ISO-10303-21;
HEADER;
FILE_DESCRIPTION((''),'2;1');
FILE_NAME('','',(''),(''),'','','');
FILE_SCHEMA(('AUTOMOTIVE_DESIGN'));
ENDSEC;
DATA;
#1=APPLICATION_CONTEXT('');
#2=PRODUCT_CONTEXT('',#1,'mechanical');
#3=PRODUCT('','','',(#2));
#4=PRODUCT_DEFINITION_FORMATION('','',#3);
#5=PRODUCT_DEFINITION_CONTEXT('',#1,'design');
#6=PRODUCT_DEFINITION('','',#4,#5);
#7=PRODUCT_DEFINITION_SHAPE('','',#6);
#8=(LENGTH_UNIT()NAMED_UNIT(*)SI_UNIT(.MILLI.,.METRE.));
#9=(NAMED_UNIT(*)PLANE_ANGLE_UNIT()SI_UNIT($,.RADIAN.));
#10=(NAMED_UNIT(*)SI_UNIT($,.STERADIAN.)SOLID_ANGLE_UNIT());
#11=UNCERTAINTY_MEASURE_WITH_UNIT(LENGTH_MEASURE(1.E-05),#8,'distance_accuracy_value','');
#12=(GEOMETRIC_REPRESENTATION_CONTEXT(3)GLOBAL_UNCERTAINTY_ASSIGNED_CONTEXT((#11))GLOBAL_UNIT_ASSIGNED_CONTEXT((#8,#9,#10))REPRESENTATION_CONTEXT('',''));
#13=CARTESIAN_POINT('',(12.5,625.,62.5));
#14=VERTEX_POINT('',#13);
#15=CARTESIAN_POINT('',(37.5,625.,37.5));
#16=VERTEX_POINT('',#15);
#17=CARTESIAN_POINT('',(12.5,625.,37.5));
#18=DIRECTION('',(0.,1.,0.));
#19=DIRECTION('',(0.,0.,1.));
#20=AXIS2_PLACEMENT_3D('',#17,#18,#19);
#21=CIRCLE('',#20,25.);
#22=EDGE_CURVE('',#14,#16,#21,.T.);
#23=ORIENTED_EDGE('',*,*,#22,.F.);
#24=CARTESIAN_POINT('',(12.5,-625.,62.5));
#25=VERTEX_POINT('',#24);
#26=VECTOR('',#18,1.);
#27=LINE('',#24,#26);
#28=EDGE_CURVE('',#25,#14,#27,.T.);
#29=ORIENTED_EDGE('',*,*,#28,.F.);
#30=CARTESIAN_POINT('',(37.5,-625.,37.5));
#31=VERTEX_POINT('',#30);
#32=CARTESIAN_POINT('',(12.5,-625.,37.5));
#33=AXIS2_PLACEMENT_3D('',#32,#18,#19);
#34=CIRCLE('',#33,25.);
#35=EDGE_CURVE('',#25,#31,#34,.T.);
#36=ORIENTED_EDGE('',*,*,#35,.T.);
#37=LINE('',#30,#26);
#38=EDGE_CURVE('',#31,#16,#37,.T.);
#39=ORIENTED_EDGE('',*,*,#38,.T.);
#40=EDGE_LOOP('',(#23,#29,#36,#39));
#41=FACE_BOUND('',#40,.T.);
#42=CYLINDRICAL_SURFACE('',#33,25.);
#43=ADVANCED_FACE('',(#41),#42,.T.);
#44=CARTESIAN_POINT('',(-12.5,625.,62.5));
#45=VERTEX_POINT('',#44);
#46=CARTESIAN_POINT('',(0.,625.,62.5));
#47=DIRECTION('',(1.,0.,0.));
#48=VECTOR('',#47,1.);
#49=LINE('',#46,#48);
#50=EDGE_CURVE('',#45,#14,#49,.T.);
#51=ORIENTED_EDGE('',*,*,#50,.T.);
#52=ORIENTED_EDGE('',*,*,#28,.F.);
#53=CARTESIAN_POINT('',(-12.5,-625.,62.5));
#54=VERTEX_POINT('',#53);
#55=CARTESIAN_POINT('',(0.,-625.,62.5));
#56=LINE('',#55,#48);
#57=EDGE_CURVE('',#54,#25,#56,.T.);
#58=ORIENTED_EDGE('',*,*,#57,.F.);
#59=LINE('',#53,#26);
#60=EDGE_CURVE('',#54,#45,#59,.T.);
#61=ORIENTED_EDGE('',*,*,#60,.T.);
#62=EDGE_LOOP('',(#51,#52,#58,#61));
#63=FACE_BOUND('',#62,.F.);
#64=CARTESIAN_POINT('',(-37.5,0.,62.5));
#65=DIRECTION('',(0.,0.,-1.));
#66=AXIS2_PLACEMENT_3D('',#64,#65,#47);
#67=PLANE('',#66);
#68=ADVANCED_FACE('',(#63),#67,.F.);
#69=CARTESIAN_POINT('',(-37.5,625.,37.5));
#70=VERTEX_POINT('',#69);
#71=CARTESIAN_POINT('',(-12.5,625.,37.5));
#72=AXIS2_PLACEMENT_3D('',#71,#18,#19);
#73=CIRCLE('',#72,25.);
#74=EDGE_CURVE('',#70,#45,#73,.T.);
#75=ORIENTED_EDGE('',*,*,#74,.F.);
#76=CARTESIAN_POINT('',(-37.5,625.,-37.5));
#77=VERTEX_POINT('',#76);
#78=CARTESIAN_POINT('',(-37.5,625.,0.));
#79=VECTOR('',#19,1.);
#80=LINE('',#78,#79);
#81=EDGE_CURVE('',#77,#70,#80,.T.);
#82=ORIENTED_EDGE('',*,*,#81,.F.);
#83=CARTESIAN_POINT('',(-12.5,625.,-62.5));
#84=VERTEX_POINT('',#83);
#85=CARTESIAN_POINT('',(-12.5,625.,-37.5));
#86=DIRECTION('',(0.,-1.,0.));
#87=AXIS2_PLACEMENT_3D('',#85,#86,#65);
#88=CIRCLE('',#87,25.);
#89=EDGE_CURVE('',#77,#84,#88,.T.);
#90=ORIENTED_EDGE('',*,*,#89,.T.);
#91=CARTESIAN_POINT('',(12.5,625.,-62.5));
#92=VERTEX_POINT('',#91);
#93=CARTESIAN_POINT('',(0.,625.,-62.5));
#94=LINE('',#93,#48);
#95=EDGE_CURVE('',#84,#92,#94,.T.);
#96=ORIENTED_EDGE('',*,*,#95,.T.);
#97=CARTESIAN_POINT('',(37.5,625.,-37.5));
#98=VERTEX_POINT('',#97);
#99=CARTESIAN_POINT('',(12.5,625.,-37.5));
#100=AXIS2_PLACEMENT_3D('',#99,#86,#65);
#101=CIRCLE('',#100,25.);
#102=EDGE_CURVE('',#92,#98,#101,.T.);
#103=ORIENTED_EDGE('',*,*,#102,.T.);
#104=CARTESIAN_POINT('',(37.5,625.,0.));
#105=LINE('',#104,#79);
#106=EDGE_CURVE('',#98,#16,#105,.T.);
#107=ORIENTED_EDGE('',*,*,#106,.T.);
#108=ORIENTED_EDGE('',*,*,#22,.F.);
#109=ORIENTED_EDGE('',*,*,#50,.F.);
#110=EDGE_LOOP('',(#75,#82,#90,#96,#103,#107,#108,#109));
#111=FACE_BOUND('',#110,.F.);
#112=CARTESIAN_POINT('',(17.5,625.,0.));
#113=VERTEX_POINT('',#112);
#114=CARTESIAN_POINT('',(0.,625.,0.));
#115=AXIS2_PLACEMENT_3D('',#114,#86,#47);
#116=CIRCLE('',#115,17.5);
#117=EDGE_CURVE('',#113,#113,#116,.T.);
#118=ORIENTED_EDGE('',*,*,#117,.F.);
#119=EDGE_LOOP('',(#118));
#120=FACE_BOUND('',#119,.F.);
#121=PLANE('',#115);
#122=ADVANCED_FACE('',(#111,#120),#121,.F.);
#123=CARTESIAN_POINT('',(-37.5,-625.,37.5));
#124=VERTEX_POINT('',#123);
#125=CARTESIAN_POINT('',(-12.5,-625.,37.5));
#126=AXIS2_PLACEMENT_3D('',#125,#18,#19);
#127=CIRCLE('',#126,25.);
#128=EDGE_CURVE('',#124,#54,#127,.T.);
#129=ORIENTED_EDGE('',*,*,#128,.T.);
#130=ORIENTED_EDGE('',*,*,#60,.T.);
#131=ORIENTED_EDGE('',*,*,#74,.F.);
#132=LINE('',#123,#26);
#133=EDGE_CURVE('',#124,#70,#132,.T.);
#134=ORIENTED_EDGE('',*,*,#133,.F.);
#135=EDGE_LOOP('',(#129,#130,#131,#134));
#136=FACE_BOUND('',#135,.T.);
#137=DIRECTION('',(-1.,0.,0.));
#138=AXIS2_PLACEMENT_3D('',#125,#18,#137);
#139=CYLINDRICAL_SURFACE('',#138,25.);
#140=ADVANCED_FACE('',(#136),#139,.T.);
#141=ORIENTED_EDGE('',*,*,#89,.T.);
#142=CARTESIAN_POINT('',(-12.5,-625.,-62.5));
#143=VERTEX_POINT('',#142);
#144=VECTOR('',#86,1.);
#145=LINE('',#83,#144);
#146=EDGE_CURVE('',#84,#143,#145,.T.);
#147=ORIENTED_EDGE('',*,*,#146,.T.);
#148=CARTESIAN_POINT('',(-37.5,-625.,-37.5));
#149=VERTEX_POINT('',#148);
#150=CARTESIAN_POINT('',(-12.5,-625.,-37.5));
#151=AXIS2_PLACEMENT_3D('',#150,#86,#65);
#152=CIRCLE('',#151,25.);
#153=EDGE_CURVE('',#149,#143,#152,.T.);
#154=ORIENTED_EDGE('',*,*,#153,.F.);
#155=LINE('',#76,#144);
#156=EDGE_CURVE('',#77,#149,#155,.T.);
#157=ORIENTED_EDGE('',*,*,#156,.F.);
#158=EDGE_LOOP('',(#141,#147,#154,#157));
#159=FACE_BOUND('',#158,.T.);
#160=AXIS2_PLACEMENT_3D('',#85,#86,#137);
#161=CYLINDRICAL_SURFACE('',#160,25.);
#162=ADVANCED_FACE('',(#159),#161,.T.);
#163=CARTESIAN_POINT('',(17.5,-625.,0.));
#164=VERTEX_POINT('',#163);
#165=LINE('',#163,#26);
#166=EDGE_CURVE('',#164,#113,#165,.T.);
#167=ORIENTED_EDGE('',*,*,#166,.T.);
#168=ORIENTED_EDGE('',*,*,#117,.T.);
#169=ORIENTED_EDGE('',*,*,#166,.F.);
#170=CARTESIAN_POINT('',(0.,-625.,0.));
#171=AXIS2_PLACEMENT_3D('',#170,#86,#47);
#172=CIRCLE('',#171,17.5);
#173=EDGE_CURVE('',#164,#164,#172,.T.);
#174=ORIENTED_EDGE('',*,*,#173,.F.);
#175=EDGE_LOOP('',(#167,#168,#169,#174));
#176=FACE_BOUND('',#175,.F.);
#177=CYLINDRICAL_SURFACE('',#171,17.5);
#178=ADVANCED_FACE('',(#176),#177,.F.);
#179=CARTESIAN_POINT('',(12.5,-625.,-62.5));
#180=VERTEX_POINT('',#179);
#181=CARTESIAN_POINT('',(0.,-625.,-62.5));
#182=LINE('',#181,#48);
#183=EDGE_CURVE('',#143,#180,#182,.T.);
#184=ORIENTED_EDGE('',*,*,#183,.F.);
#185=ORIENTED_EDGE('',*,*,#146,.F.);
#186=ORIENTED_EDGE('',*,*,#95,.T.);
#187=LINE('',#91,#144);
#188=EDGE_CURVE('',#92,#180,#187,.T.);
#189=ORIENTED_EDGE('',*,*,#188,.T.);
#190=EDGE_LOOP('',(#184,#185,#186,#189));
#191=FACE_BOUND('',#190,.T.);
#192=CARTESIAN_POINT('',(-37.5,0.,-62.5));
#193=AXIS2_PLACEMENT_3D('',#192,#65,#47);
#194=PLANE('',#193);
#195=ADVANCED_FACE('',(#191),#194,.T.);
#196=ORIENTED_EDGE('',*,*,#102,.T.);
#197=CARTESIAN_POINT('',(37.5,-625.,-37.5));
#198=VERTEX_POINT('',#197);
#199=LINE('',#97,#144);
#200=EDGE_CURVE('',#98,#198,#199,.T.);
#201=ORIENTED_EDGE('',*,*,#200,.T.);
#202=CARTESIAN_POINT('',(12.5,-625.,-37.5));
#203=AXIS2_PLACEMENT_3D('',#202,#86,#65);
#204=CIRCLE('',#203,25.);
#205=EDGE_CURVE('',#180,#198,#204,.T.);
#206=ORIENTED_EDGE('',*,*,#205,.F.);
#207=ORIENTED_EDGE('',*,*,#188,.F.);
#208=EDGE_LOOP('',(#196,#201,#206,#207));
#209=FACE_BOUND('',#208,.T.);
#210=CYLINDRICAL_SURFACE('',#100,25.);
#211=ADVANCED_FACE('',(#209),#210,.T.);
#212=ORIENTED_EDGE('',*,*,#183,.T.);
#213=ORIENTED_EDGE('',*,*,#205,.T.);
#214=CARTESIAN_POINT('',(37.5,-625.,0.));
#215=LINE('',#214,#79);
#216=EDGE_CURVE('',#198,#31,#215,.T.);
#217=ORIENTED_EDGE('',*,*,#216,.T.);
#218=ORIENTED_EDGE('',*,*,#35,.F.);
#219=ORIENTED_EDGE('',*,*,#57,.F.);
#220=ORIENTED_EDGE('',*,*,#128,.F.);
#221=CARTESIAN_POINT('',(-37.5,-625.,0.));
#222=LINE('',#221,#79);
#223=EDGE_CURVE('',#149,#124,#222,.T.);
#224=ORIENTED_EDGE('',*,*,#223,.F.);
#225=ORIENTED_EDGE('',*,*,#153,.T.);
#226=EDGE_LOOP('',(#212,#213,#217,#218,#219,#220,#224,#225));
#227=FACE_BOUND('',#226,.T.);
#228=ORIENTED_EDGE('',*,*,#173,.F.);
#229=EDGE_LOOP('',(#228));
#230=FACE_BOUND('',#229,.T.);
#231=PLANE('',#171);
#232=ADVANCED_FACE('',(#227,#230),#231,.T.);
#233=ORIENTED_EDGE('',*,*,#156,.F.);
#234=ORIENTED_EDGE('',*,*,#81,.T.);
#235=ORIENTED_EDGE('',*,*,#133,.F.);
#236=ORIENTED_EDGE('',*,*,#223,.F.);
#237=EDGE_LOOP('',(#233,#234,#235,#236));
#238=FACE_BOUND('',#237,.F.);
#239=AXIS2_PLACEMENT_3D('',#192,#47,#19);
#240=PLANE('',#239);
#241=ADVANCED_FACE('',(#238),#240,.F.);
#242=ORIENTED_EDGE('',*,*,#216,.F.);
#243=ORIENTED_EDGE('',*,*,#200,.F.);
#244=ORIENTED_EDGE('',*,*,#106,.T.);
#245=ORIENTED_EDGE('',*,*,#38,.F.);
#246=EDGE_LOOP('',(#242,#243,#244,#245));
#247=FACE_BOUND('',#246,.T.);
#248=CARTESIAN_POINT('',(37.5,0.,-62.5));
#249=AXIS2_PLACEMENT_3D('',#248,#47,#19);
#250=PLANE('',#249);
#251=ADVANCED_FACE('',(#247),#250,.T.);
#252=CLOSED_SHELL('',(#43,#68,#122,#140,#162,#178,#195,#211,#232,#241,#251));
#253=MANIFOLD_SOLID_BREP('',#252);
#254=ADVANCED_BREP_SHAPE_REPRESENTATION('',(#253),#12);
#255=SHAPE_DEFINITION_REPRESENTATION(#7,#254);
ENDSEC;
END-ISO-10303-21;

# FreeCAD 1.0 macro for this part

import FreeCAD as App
import Part
import Sketcher

V = App.Vector


def edges_at(feature, points):
    """Names of the edges that pass closest to the given points."""
    edges = feature.Shape.Edges
    near = lambda p: min(range(len(edges)), key=lambda i: edges[i].distToShape(Part.Vertex(*p))[0])
    return sorted({f"Edge{near(p) + 1}" for p in points})

doc = App.newDocument("Part")
body = doc.addObject("PartDesign::Body", "Body")

# Sketch on XZ plane
sketch1 = body.newObject("Sketcher::SketchObject", "Sketch")
sketch1.AttachmentSupport = (doc.getObject("XZ_Plane"), [""])
sketch1.MapMode = "FlatFace"
sketch1.addGeometry(Part.LineSegment(V(-38, 62, 0), V(-38, -62, 0)), False)
sketch1.addGeometry(Part.LineSegment(V(-38, -62, 0), V(38, -62, 0)), False)
sketch1.addGeometry(Part.LineSegment(V(38, -62, 0), V(38, 62, 0)), False)
sketch1.addGeometry(Part.LineSegment(V(38, 62, 0), V(-38, 62, 0)), False)
sketch1.addConstraint(Sketcher.Constraint("Coincident", 0, 2, 1, 1))
sketch1.addConstraint(Sketcher.Constraint("Coincident", 1, 2, 2, 1))
sketch1.addConstraint(Sketcher.Constraint("Coincident", 2, 2, 3, 1))
sketch1.addConstraint(Sketcher.Constraint("Coincident", 3, 2, 0, 1))
sketch1.addConstraint(Sketcher.Constraint("Vertical", 0))
sketch1.addConstraint(Sketcher.Constraint("Horizontal", 1))
sketch1.addConstraint(Sketcher.Constraint("Vertical", 2))
sketch1.addConstraint(Sketcher.Constraint("Horizontal", 3))
sketch1.addConstraint(Sketcher.Constraint("Symmetric", 0, 2, 2, 2, -1, 1))
sketch1.addConstraint(Sketcher.Constraint("DistanceX", 1, 1, 1, 2, 75.0))
sketch1.addConstraint(Sketcher.Constraint("DistanceY", 0, 2, 0, 1, 125.0))
pad1 = body.newObject("PartDesign::Pad", "Pad")
pad1.Profile = sketch1
pad1.Length = 1250
pad1.Midplane = True

# Sketch on XZ plane
sketch2 = body.newObject("Sketcher::SketchObject", "Sketch001")
sketch2.AttachmentSupport = (doc.getObject("XZ_Plane"), [""])
sketch2.MapMode = "FlatFace"
sketch2.AttachmentOffset = App.Placement(V(0, 0, 625), App.Rotation())
sketch2.addGeometry(Part.Circle(V(0, 0, 0), V(0, 0, 1), 18), False)
sketch2.addConstraint(Sketcher.Constraint("Coincident", 0, 3, -1, 1))
sketch2.addConstraint(Sketcher.Constraint("Diameter", 0, 35.0))
pocket1 = body.newObject("PartDesign::Pocket", "Pocket")
pocket1.Profile = sketch2
pocket1.Length = 1250
doc.recompute()

fillet = body.newObject("PartDesign::Fillet", "Fillet")
fillet.Base = (pocket1, edges_at(pocket1, [
    (37.5, 0, 62.5),
    (-37.5, 0, 62.5),
    (-37.5, 0, -62.5),
    (37.5, 0, -62.5),
]))
fillet.Radius = 25

doc.recompute()
